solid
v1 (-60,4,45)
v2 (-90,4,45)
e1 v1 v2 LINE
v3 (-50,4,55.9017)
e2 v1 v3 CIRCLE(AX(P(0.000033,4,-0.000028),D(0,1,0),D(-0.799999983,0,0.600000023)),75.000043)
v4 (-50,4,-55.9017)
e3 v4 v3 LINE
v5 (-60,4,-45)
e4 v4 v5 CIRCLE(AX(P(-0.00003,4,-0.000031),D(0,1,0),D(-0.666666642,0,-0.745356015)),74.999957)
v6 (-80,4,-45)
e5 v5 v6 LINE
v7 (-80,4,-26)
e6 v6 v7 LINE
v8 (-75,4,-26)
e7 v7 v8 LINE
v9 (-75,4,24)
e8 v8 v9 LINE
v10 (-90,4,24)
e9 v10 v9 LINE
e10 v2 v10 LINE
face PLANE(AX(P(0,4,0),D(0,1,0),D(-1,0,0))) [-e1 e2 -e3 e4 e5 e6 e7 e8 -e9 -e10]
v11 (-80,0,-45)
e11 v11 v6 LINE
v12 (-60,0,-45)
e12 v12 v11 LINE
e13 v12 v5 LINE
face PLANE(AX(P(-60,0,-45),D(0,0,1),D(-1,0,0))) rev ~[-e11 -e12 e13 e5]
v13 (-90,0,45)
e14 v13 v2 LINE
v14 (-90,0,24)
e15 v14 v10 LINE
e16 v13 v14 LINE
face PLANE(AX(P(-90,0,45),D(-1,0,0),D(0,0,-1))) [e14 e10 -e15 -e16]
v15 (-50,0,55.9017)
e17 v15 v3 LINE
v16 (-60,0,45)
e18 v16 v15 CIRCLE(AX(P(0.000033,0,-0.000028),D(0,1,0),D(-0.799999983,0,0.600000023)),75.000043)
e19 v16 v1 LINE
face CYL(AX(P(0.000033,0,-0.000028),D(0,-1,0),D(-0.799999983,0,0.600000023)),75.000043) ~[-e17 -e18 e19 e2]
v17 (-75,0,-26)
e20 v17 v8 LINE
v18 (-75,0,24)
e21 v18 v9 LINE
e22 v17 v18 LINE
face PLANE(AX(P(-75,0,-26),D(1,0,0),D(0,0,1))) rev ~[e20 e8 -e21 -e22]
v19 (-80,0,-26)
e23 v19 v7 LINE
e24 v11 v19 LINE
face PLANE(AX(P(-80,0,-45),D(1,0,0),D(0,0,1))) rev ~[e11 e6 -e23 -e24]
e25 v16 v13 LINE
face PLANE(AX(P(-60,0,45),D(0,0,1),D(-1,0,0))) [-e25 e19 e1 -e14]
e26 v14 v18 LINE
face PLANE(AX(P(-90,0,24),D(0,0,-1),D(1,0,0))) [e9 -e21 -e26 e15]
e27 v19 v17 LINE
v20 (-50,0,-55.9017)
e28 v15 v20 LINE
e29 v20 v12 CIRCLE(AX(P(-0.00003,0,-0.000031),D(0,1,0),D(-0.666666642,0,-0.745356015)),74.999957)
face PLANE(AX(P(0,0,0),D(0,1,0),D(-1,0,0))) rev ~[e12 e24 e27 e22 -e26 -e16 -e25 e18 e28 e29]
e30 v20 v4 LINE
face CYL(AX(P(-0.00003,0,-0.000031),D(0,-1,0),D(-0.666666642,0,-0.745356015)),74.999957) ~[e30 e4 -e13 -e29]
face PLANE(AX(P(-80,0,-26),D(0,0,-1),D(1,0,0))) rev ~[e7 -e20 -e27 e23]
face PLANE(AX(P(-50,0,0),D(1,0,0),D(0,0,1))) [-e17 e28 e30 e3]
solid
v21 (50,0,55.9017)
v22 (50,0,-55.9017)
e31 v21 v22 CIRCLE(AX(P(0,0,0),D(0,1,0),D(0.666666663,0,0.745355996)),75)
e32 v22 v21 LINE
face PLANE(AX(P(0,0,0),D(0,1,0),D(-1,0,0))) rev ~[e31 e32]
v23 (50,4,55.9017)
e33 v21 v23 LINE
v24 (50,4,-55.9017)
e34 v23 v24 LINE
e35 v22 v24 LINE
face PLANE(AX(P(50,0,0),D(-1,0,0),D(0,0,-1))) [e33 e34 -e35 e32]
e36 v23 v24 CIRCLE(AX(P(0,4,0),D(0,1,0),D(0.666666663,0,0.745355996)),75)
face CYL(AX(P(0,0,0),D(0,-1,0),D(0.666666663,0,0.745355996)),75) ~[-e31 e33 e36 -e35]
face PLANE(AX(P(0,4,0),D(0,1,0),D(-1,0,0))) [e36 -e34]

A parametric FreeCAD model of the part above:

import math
import FreeCAD as App
import Part
import Sketcher

V = App.Vector

doc = App.newDocument("Part")
body = doc.addObject("PartDesign::Body", "Body")
body.AllowCompound = True

# Sketch on XZ plane
sketch1 = body.newObject("Sketcher::SketchObject", "Sketch")
sketch1.AttachmentSupport = (doc.getObject("XZ_Plane"), [""])
sketch1.MapMode = "FlatFace"
sketch1.addGeometry(Part.LineSegment(V(50, -56, 0), V(50, 56, 0)), False)
sketch1.addGeometry(Part.ArcOfCircle(Part.Circle(V(0, 0, 0), V(0, 0, 1), 75), math.radians(-48), math.radians(48)), False)
sketch1.addGeometry(Part.LineSegment(V(-50, 56, 0), V(-50, -56, 0)), False)
sketch1.addGeometry(Part.ArcOfCircle(Part.Circle(V(0, 0, 0), V(0, 0, 1), 75), math.radians(-143.13), math.radians(-131.81)), False)
sketch1.addGeometry(Part.LineSegment(V(-60, -45, 0), V(-80, -45, 0)), False)
sketch1.addGeometry(Part.LineSegment(V(-80, -45, 0), V(-80, -26, 0)), False)
sketch1.addGeometry(Part.LineSegment(V(-80, -26, 0), V(-75, -26, 0)), False)
sketch1.addGeometry(Part.LineSegment(V(-75, -26, 0), V(-75, 24, 0)), False)
sketch1.addGeometry(Part.LineSegment(V(-75, 24, 0), V(-90, 24, 0)), False)
sketch1.addGeometry(Part.LineSegment(V(-90, 24, 0), V(-90, 45, 0)), False)
sketch1.addGeometry(Part.LineSegment(V(-90, 45, 0), V(-60, 45, 0)), False)
sketch1.addGeometry(Part.ArcOfCircle(Part.Circle(V(0, 0, 0), V(0, 0, 1), 75), math.radians(131.81), math.radians(143.13)), False)
sketch1.addConstraint(Sketcher.Constraint("Coincident", 0, 1, 1, 1))
sketch1.addConstraint(Sketcher.Constraint("Coincident", 1, 2, 0, 2))
sketch1.addConstraint(Sketcher.Constraint("Coincident", 2, 2, 3, 2))
sketch1.addConstraint(Sketcher.Constraint("Coincident", 3, 1, 4, 1))
sketch1.addConstraint(Sketcher.Constraint("Coincident", 4, 2, 5, 1))
sketch1.addConstraint(Sketcher.Constraint("Coincident", 5, 2, 6, 1))
sketch1.addConstraint(Sketcher.Constraint("Coincident", 6, 2, 7, 1))
sketch1.addConstraint(Sketcher.Constraint("Coincident", 7, 2, 8, 1))
sketch1.addConstraint(Sketcher.Constraint("Coincident", 8, 2, 9, 1))
sketch1.addConstraint(Sketcher.Constraint("Coincident", 9, 2, 10, 1))
sketch1.addConstraint(Sketcher.Constraint("Coincident", 10, 2, 11, 2))
sketch1.addConstraint(Sketcher.Constraint("Coincident", 11, 1, 2, 1))
sketch1.addConstraint(Sketcher.Constraint("Vertical", 0))
sketch1.addConstraint(Sketcher.Constraint("Vertical", 2))
sketch1.addConstraint(Sketcher.Constraint("Horizontal", 4))
sketch1.addConstraint(Sketcher.Constraint("Vertical", 5))
sketch1.addConstraint(Sketcher.Constraint("Horizontal", 6))
sketch1.addConstraint(Sketcher.Constraint("Vertical", 7))
sketch1.addConstraint(Sketcher.Constraint("Horizontal", 8))
sketch1.addConstraint(Sketcher.Constraint("Vertical", 9))
sketch1.addConstraint(Sketcher.Constraint("Horizontal", 10))
sketch1.addConstraint(Sketcher.Constraint("Coincident", 1, 3, -1, 1))
sketch1.addConstraint(Sketcher.Constraint("Coincident", 3, 3, -1, 1))
sketch1.addConstraint(Sketcher.Constraint("Coincident", 11, 3, -1, 1))
sketch1.addConstraint(Sketcher.Constraint("Equal", 1, 3))
sketch1.addConstraint(Sketcher.Constraint("Equal", 3, 11))
sketch1.addConstraint(Sketcher.Constraint("Horizontal", 0, 1, 2, 2))
sketch1.addConstraint(Sketcher.Constraint("Vertical", 3, 1, 10, 2))
sketch1.addConstraint(Sketcher.Constraint("DistanceX", 6, 1, 6, 2, 5.0))
sketch1.addConstraint(Sketcher.Constraint("DistanceX", 10, 1, 10, 2, 30.0))
sketch1.addConstraint(Sketcher.Constraint("DistanceY", 5, 1, 5, 2, 19.0))
sketch1.addConstraint(Sketcher.Constraint("DistanceY", 9, 1, 9, 2, 21.0))
sketch1.addConstraint(Sketcher.Constraint("DistanceY", 3, 1, -1, 1, 45.0))
sketch1.addConstraint(Sketcher.Constraint("Radius", 1, 75.0))
sketch1.addConstraint(Sketcher.Constraint("DistanceX", 4, 2, 2, 2, 30.0))
sketch1.addConstraint(Sketcher.Constraint("DistanceX", 9, 2, 11, 1, 40.0))
pad1 = body.newObject("PartDesign::Pad", "Pad")
pad1.Profile = sketch1
pad1.Length = 4
pad1.Reversed = True

doc.recompute()
